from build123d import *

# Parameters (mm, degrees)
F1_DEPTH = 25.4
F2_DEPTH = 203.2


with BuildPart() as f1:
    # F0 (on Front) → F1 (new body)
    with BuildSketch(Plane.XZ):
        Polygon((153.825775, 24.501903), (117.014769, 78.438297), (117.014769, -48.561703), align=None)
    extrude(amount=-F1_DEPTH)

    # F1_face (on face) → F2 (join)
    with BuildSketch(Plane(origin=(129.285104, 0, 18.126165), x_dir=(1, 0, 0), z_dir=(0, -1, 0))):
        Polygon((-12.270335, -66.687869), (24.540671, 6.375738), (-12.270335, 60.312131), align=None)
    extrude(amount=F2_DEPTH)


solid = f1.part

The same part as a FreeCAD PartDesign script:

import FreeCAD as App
import Part
import Sketcher

V = App.Vector
Q = App.Units.Quantity


def add_polygon(sketch, points):
    """Adds a closed chain of lines whose ends are joined by coincident constraints."""
    first, n = sketch.GeometryCount, len(points)
    for a, b in zip(points, points[1:] + points[:1]):
        sketch.addGeometry(Part.LineSegment(App.Vector(*a, 0), App.Vector(*b, 0)), False)
    for i in range(n):
        sketch.addConstraint(Sketcher.Constraint("Coincident", first + i, 2, first + (i + 1) % n, 1))

doc = App.newDocument("Part")
params = doc.addObject("Spreadsheet::Sheet", "Params")
for row, (alias, value) in enumerate([
    ("sketch1_height", "5 in"),
    ("pad1_length", "1 in"),
    ("sketch2_height", "5 in"),
    ("pad2_length", "8 in"),
], start=1):
    params.set(f"A{row}", alias)
    params.set(f"B{row}", "=" + value)
    params.setAlias(f"B{row}", alias)

body = doc.addObject("PartDesign::Body", "Body")

# Sketch on XZ plane
sketch1 = doc.addObject("Sketcher::SketchObject", "Sketch")
body.addObject(sketch1)
sketch1.AttachmentSupport = (doc.XZ_Plane, [""])
sketch1.MapMode = "FlatFace"
add_polygon(sketch1, [(154, 25), (117, 78), (117, -49)])  # lines 0-2
sketch1.addConstraint(Sketcher.Constraint("Vertical", 1))
sketch1.addConstraint(Sketcher.Constraint("DistanceY", 1, 2, 1, 1, Q("5 in")))
sketch1.addConstraint(Sketcher.Constraint("Distance", 2, 81.812839))
sketch1.addConstraint(Sketcher.Constraint("DistanceX", -1, 1, 0, 2, 117.014769))
sketch1.addConstraint(Sketcher.Constraint("Distance", 0, 65.300726))
sketch1.addConstraint(Sketcher.Constraint("DistanceY", -1, 1, 0, 2, 78.438297))
sketch1.setExpression("Constraints[4]", "Params.sketch1_height")
pad1 = doc.addObject("PartDesign::Pad", "Pad")
body.addObject(pad1)
pad1.Profile = sketch1
pad1.setExpression("Length", "Params.pad1_length")
pad1.Reversed = True

# Sketch on XZ plane
sketch2 = doc.addObject("Sketcher::SketchObject", "Sketch001")
body.addObject(sketch2)
sketch2.AttachmentSupport = (doc.XZ_Plane, [""])
sketch2.MapMode = "FlatFace"
add_polygon(sketch2, [(117, -49), (154, 25), (117, 78)])  # lines 0-2
sketch2.addConstraint(Sketcher.Constraint("Vertical", 2))
sketch2.addConstraint(Sketcher.Constraint("DistanceY", 2, 2, 2, 1, Q("5 in")))
sketch2.addConstraint(Sketcher.Constraint("Distance", 0, 81.81284))
sketch2.addConstraint(Sketcher.Constraint("DistanceX", -1, 1, 1, 2, 117.014769))
sketch2.addConstraint(Sketcher.Constraint("Distance", 1, 65.300725))
sketch2.addConstraint(Sketcher.Constraint("DistanceY", -1, 1, 0, 2, 24.501903))
sketch2.setExpression("Constraints[4]", "Params.sketch2_height")
pad2 = doc.addObject("PartDesign::Pad", "Pad001")
body.addObject(pad2)
pad2.Profile = sketch2
pad2.setExpression("Length", "Params.pad2_length")

doc.recompute()
